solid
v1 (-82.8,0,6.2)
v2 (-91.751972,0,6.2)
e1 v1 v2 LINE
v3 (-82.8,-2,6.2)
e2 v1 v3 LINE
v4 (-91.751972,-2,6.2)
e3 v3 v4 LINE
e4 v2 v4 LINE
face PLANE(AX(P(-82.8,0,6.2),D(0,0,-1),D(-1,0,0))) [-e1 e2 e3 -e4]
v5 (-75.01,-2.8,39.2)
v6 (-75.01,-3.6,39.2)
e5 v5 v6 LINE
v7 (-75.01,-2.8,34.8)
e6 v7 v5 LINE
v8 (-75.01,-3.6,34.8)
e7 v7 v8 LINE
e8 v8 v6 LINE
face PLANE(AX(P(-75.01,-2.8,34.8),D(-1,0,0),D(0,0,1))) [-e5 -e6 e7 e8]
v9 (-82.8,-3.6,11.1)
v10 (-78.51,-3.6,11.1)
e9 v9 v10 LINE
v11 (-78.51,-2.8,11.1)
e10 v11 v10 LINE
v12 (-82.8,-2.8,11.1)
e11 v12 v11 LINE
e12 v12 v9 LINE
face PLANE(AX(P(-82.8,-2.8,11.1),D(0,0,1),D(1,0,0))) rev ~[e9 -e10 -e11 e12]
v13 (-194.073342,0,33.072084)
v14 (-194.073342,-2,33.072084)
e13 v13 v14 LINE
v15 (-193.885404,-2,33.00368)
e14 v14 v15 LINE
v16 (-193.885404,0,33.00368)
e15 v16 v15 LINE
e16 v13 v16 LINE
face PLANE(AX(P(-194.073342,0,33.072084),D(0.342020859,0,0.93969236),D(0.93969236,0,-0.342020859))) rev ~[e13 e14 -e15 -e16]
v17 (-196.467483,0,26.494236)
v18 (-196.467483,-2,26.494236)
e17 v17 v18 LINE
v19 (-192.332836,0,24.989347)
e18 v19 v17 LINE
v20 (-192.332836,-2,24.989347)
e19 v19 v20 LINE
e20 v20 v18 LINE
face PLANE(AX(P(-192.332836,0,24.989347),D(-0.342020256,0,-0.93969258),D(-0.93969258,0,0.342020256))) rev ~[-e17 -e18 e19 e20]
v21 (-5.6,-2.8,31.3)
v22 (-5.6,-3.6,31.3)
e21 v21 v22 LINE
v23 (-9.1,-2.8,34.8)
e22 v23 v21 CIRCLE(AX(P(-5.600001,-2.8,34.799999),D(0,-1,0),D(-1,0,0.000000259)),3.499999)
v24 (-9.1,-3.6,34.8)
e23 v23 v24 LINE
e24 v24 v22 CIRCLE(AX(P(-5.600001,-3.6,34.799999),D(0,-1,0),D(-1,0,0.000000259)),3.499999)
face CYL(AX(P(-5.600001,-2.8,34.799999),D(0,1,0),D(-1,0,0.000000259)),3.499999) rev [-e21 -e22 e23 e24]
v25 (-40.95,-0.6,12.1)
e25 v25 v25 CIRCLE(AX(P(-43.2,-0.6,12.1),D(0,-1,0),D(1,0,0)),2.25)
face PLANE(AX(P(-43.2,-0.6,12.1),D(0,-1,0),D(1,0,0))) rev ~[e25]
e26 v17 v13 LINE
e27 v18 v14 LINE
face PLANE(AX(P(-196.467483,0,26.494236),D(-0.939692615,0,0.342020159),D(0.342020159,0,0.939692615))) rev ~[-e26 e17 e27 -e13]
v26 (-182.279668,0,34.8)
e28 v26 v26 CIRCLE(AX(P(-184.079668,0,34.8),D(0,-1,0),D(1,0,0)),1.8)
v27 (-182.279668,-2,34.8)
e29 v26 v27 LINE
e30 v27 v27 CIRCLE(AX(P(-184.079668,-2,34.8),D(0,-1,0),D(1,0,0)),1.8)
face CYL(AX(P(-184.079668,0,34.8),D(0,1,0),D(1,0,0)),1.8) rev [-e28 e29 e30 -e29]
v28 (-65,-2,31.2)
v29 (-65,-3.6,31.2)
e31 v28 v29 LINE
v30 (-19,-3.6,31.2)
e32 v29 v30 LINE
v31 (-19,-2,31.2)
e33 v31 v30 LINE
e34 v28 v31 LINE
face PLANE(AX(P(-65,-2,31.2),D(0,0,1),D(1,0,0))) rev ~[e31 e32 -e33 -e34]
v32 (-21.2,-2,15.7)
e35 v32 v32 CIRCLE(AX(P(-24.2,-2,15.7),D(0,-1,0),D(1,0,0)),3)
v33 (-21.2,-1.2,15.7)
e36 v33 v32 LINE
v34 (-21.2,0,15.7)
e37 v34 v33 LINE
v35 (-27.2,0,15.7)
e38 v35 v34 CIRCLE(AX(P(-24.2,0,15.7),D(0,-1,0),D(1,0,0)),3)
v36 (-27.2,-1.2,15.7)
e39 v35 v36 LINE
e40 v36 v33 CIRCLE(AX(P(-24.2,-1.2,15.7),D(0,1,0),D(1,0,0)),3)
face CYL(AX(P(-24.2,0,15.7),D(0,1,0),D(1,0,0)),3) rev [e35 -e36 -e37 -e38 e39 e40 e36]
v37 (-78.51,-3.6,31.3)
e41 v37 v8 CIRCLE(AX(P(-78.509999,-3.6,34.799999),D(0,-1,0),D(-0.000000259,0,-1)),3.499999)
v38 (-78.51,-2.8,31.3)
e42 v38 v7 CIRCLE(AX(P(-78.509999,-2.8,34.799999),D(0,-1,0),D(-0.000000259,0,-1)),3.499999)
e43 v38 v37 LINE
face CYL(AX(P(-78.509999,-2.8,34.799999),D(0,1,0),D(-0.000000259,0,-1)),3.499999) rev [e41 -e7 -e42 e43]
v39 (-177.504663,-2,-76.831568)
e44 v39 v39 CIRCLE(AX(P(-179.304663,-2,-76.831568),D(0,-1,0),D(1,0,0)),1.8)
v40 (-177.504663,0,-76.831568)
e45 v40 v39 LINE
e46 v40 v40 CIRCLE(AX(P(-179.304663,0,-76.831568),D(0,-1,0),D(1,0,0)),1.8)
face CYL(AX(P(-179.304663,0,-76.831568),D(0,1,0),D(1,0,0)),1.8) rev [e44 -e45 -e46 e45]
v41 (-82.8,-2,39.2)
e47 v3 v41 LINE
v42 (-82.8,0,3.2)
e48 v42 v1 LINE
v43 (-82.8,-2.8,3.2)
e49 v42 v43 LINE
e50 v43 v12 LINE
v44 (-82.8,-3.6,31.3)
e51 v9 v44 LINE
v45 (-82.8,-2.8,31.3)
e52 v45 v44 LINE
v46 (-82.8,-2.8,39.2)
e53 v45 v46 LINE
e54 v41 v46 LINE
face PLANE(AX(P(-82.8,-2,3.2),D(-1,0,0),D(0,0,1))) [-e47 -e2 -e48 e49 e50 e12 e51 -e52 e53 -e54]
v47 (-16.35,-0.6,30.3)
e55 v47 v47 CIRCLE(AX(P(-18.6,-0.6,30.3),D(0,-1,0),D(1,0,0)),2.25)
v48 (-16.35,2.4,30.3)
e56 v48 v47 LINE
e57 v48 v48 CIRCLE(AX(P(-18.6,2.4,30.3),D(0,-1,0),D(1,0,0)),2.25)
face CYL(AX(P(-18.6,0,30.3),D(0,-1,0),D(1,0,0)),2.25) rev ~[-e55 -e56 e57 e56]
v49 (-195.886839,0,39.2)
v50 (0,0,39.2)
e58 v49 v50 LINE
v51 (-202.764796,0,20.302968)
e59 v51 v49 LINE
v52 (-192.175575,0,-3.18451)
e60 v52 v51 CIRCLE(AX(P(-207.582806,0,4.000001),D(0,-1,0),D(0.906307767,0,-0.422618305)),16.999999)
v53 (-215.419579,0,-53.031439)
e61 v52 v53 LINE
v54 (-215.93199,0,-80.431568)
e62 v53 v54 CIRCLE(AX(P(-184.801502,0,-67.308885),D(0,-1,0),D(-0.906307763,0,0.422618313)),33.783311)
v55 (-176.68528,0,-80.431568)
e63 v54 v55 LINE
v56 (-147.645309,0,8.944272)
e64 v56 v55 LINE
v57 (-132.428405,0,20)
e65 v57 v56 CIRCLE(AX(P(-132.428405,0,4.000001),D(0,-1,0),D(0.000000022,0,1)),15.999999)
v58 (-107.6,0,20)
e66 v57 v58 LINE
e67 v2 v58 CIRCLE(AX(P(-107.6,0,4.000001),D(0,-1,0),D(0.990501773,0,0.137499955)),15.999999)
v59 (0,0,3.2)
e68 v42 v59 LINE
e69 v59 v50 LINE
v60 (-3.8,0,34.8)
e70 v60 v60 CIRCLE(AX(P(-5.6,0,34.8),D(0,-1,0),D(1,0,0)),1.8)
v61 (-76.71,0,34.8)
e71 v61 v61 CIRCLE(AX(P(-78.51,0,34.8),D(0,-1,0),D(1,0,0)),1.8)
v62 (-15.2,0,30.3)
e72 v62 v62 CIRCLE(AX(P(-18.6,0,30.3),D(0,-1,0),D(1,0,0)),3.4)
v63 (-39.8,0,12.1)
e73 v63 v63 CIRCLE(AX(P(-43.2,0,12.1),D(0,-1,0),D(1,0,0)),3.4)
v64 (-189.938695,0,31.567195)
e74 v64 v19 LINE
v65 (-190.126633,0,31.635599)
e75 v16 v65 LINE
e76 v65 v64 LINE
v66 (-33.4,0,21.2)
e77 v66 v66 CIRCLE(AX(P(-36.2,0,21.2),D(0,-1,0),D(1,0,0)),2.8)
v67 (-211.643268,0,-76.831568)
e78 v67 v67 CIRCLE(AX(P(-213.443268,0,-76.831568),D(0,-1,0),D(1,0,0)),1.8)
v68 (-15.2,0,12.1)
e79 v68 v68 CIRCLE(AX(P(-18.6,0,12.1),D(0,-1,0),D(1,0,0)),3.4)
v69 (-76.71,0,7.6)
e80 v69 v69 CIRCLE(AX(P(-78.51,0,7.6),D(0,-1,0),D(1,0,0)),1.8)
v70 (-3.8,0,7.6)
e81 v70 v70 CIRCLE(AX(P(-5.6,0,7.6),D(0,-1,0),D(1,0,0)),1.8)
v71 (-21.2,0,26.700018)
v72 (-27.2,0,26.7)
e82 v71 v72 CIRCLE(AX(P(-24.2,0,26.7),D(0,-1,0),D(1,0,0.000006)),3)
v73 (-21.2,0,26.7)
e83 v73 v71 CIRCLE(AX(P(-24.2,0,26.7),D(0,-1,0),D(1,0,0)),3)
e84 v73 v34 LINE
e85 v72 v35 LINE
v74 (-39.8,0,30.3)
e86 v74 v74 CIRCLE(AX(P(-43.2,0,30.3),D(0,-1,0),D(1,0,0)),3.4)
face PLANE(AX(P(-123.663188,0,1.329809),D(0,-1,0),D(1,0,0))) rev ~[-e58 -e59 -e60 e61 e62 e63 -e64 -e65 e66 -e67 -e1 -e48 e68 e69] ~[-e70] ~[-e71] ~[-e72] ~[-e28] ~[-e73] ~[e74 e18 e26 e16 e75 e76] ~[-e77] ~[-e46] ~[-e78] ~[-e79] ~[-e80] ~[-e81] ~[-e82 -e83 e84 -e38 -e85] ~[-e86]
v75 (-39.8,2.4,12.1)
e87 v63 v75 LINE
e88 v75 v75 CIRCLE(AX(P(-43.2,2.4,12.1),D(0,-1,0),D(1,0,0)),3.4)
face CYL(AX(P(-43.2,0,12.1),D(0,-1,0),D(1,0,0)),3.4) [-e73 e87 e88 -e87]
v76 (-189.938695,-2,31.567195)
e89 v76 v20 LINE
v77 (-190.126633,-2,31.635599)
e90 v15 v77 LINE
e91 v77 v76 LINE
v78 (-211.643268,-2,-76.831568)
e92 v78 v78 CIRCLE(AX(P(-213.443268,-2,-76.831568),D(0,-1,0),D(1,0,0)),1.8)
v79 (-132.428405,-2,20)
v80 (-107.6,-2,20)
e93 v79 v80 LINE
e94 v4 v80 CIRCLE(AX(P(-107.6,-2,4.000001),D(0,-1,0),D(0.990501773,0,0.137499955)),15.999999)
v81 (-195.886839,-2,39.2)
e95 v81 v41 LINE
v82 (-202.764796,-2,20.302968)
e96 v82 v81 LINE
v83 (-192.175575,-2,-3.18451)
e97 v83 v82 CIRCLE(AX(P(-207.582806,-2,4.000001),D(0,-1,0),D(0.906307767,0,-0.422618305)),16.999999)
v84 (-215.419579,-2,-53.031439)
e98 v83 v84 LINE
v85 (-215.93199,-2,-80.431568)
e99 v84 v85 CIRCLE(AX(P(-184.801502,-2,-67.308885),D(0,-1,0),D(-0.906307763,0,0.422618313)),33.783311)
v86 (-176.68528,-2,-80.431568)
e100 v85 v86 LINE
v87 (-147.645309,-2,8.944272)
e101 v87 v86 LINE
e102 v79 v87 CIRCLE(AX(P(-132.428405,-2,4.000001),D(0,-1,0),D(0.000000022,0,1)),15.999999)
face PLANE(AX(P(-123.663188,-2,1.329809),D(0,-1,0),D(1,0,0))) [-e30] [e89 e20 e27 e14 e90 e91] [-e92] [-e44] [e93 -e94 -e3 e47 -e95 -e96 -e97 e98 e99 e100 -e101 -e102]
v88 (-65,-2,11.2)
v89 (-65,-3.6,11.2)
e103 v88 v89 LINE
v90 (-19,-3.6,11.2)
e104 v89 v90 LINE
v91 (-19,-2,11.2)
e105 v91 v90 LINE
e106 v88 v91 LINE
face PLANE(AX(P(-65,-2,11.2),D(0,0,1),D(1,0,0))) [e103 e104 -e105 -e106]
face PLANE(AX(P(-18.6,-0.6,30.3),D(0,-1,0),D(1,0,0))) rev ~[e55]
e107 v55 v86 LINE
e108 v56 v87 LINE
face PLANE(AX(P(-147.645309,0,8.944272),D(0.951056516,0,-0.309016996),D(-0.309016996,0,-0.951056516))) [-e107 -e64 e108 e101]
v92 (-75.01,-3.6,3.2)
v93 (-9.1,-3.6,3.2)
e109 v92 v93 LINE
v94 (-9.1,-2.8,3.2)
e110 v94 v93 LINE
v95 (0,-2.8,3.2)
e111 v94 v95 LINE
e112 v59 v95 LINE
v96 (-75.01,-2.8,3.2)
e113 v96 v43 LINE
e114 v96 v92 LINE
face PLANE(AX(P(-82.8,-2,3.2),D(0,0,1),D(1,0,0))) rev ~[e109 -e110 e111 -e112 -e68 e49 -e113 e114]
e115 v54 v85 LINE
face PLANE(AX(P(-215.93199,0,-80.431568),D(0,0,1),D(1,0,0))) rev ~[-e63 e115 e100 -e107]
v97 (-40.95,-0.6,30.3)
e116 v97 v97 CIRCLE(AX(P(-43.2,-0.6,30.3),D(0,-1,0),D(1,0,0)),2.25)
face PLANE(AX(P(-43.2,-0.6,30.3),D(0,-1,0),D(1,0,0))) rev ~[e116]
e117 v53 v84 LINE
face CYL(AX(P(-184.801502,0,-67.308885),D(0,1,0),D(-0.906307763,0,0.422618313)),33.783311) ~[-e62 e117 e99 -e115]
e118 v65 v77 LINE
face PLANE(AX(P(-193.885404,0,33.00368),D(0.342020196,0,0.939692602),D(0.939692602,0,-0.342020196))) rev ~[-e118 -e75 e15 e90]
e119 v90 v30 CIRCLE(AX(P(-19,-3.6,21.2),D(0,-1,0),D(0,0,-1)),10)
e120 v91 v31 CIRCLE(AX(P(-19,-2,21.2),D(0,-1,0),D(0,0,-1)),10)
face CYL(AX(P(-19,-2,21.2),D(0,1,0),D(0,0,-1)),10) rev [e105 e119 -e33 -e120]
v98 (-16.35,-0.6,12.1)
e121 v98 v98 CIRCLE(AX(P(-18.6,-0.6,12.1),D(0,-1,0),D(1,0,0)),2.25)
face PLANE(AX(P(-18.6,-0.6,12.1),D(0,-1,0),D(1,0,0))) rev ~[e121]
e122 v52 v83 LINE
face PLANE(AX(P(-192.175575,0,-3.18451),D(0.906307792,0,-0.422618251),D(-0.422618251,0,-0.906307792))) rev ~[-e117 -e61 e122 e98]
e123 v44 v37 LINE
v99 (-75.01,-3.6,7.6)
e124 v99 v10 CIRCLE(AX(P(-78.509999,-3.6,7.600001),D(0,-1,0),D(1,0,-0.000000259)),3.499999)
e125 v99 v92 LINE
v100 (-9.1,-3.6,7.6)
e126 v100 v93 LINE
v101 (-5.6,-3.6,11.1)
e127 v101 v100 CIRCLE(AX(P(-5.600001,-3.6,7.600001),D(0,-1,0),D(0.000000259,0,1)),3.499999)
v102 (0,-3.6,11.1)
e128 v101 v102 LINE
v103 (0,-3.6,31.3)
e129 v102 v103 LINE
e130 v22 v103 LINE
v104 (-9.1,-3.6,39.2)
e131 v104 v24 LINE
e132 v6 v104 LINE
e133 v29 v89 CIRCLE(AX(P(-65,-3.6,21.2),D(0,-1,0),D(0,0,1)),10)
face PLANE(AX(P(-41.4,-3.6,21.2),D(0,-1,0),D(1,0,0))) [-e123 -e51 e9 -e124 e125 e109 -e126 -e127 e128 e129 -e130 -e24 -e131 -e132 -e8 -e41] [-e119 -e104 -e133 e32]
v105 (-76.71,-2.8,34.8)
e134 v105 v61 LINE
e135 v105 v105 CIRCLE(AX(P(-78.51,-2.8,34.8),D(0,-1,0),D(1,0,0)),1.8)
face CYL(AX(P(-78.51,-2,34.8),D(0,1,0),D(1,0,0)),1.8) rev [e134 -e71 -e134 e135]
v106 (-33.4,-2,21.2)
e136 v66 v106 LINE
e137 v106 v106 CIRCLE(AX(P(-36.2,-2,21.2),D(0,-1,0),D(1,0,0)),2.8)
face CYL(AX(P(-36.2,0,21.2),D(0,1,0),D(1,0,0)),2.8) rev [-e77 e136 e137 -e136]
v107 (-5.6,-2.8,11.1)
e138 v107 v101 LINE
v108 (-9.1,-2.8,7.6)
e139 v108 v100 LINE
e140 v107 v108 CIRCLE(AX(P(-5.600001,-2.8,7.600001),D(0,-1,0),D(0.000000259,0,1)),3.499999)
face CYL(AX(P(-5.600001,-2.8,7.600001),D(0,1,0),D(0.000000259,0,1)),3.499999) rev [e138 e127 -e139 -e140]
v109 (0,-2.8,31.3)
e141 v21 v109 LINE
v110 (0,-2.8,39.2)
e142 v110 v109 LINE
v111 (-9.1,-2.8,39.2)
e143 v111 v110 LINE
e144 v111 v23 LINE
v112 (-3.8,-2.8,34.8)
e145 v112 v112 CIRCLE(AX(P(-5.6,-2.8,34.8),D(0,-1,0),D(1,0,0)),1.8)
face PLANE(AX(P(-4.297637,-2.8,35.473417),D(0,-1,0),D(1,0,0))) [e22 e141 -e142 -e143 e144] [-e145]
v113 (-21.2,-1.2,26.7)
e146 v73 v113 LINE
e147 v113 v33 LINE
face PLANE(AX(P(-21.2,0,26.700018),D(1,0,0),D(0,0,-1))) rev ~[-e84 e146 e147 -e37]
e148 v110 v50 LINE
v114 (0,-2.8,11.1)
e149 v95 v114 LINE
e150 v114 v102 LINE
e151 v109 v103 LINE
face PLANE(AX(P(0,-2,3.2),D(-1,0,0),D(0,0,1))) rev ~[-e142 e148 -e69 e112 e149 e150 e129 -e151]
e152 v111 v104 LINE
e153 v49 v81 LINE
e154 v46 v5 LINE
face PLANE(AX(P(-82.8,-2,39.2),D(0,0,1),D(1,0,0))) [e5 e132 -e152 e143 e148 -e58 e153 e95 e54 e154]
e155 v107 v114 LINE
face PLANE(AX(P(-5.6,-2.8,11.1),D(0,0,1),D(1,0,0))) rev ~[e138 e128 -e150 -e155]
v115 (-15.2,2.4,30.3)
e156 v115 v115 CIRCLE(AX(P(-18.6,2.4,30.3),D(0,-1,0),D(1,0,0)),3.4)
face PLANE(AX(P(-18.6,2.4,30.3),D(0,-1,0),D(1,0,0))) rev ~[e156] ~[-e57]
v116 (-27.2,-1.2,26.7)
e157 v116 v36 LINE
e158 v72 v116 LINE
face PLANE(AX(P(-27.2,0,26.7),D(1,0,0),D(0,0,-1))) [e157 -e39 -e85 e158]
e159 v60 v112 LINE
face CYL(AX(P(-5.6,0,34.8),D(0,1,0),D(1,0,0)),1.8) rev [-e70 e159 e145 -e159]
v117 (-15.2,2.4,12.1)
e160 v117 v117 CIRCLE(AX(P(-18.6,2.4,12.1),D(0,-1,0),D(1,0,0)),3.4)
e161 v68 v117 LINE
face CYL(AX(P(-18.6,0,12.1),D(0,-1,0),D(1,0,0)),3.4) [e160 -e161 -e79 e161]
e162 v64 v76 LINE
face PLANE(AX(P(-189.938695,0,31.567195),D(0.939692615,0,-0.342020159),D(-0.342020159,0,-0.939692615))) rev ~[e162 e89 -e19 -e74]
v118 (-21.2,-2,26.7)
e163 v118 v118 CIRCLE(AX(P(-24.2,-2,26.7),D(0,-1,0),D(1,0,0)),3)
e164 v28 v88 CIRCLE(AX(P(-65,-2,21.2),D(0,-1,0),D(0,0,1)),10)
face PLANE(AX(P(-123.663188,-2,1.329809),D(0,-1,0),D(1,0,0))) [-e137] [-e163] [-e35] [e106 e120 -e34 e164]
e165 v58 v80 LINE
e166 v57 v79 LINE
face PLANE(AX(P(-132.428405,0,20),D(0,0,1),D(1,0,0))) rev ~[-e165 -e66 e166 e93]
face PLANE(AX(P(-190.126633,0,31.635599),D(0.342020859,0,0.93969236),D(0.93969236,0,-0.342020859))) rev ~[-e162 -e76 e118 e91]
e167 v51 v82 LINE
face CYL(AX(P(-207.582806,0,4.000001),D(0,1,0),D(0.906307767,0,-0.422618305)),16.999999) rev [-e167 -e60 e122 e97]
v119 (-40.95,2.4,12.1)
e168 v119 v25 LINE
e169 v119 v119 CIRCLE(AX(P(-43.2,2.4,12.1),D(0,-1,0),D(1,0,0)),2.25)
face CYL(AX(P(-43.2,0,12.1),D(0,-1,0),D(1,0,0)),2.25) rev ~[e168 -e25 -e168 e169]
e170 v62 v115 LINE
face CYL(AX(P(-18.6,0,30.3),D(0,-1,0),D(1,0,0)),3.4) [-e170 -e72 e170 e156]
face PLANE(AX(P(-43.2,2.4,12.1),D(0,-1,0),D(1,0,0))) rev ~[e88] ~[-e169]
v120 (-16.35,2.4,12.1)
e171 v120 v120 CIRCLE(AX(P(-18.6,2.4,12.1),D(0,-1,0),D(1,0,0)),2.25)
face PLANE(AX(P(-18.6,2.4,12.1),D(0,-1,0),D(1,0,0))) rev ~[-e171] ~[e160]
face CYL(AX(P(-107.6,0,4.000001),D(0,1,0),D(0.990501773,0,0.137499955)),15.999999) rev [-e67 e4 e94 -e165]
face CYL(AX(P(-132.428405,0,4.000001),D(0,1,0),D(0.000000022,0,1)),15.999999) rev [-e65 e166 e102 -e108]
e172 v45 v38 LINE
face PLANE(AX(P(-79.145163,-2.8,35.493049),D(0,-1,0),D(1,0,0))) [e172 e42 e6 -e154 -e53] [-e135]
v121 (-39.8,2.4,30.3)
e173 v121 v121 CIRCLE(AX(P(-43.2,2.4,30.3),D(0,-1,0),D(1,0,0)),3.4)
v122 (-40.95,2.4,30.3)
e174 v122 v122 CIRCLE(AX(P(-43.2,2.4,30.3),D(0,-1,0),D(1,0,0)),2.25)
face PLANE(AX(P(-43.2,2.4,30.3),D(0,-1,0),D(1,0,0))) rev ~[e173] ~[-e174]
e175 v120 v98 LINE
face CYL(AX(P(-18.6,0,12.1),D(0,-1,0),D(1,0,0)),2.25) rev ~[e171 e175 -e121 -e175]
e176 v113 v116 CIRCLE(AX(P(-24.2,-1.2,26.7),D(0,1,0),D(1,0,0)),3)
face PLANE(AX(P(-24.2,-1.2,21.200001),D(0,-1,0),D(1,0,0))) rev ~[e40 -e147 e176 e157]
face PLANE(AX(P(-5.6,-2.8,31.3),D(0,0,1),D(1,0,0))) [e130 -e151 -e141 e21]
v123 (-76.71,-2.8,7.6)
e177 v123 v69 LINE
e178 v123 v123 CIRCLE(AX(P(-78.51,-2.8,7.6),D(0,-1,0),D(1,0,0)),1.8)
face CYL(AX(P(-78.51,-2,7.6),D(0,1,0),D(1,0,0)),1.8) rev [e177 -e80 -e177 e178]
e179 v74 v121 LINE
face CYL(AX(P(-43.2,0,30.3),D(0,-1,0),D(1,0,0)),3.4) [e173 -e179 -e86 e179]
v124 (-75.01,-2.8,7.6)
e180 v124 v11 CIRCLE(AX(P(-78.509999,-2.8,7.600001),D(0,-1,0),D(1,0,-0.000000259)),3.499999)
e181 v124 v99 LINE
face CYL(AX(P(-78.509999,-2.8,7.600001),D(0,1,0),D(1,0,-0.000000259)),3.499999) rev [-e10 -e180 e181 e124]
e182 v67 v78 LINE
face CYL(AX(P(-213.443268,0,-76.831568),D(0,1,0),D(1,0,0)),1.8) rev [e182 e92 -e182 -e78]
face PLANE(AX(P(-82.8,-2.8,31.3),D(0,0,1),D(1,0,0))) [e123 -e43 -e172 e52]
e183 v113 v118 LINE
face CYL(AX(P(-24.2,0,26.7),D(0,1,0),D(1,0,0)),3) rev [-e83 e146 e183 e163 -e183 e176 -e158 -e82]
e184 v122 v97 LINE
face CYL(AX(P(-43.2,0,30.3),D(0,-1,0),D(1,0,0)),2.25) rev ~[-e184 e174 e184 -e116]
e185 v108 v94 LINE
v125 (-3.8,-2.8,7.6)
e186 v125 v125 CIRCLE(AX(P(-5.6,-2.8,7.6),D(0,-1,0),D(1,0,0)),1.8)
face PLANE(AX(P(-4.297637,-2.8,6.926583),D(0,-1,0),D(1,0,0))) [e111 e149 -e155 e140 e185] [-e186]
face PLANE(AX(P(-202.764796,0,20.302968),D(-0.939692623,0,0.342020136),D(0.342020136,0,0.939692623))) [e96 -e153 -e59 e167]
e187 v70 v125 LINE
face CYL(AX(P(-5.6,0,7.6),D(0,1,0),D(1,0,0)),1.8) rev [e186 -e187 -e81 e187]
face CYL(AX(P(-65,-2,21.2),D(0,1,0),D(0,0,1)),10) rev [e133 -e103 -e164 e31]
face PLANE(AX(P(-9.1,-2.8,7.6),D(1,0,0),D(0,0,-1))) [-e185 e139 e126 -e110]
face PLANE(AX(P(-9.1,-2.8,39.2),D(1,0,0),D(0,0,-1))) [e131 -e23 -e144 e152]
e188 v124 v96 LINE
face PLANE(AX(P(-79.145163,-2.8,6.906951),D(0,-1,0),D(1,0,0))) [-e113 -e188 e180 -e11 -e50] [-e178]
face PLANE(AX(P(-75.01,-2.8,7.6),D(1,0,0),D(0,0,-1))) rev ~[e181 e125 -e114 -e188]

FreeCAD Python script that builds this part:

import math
import FreeCAD as App
import Part
import Sketcher
from FreeCAD import Vector
Q = App.Units.Quantity

doc = App.newDocument("Part")
body = doc.addObject("PartDesign::Body", "Body")
body.AllowCompound = True

sketch1 = doc.addObject("Sketcher::SketchObject", "Sketch")
body.addObject(sketch1)
sketch1.AttachmentSupport = (doc.XZ_Plane, [""])
sketch1.MapMode = "FlatFace"
sketch1.addGeometry(Part.ArcOfCircle(Part.Circle(Vector(-78.5, 34.8, 0), Vector(0, 0, 1), 3.5), math.radians(-90), math.radians(0)), False)
sketch1.addGeometry(Part.LineSegment(Vector(-75, 34.8, 0), Vector(-75, 39.2, 0)), False)
sketch1.addGeometry(Part.LineSegment(Vector(-75, 39.2, 0), Vector(-82.8, 39.2, 0)), False)
sketch1.addGeometry(Part.LineSegment(Vector(-82.8, 39.2, 0), Vector(-82.8, 31.3, 0)), False)
sketch1.addGeometry(Part.LineSegment(Vector(-82.8, 31.3, 0), Vector(-78.5, 31.3, 0)), False)
sketch1.addGeometry(Part.Circle(Vector(-78.5, 34.8, 0), Vector(0, 0, 1), 1.8), False)
sketch1.addGeometry(Part.ArcOfCircle(Part.Circle(Vector(-5.6, 34.8, 0), Vector(0, 0, 1), 3.5), math.radians(180), math.radians(270)), False)
sketch1.addGeometry(Part.LineSegment(Vector(-5.6, 31.3, 0), Vector(0, 31.3, 0)), False)
sketch1.addGeometry(Part.LineSegment(Vector(0, 31.3, 0), Vector(0, 39.2, 0)), False)
sketch1.addGeometry(Part.LineSegment(Vector(0, 39.2, 0), Vector(-9.1, 39.2, 0)), False)
sketch1.addGeometry(Part.LineSegment(Vector(-9.1, 39.2, 0), Vector(-9.1, 34.8, 0)), False)
sketch1.addGeometry(Part.Circle(Vector(-5.6, 34.8, 0), Vector(0, 0, 1), 1.8), False)
sketch1.addGeometry(Part.ArcOfCircle(Part.Circle(Vector(-78.5, 7.6, 0), Vector(0, 0, 1), 3.5), math.radians(0), math.radians(90)), False)
sketch1.addGeometry(Part.LineSegment(Vector(-78.5, 11.1, 0), Vector(-82.8, 11.1, 0)), False)
sketch1.addGeometry(Part.LineSegment(Vector(-82.8, 11.1, 0), Vector(-82.8, 3.2, 0)), False)
sketch1.addGeometry(Part.LineSegment(Vector(-82.8, 3.2, 0), Vector(-75, 3.2, 0)), False)
sketch1.addGeometry(Part.LineSegment(Vector(-75, 3.2, 0), Vector(-75, 7.6, 0)), False)
sketch1.addGeometry(Part.Circle(Vector(-78.5, 7.6, 0), Vector(0, 0, 1), 1.8), False)
sketch1.addGeometry(Part.ArcOfCircle(Part.Circle(Vector(-5.6, 7.6, 0), Vector(0, 0, 1), 3.5), math.radians(90), math.radians(180)), False)
sketch1.addGeometry(Part.LineSegment(Vector(-9.1, 7.6, 0), Vector(-9.1, 3.2, 0)), False)
sketch1.addGeometry(Part.LineSegment(Vector(-9.1, 3.2, 0), Vector(0, 3.2, 0)), False)
sketch1.addGeometry(Part.LineSegment(Vector(0, 3.2, 0), Vector(0, 11.1, 0)), False)
sketch1.addGeometry(Part.LineSegment(Vector(0, 11.1, 0), Vector(-5.6, 11.1, 0)), False)
sketch1.addGeometry(Part.Circle(Vector(-5.6, 7.6, 0), Vector(0, 0, 1), 1.8), False)
sketch1.addConstraint(Sketcher.Constraint("Tangent", 0, 2, 1, 1))
sketch1.addConstraint(Sketcher.Constraint("Coincident", 1, 2, 2, 1))
sketch1.addConstraint(Sketcher.Constraint("Coincident", 2, 2, 3, 1))
sketch1.addConstraint(Sketcher.Constraint("Coincident", 3, 2, 4, 1))
sketch1.addConstraint(Sketcher.Constraint("Tangent", 4, 2, 0, 1))
sketch1.addConstraint(Sketcher.Constraint("Tangent", 6, 2, 7, 1))
sketch1.addConstraint(Sketcher.Constraint("Coincident", 7, 2, 8, 1))
sketch1.addConstraint(Sketcher.Constraint("Coincident", 8, 2, 9, 1))
sketch1.addConstraint(Sketcher.Constraint("Coincident", 9, 2, 10, 1))
sketch1.addConstraint(Sketcher.Constraint("Tangent", 10, 2, 6, 1))
sketch1.addConstraint(Sketcher.Constraint("Tangent", 12, 2, 13, 1))
sketch1.addConstraint(Sketcher.Constraint("Coincident", 13, 2, 14, 1))
sketch1.addConstraint(Sketcher.Constraint("Coincident", 14, 2, 15, 1))
sketch1.addConstraint(Sketcher.Constraint("Coincident", 15, 2, 16, 1))
sketch1.addConstraint(Sketcher.Constraint("Tangent", 16, 2, 12, 1))
sketch1.addConstraint(Sketcher.Constraint("Tangent", 18, 2, 19, 1))
sketch1.addConstraint(Sketcher.Constraint("Coincident", 19, 2, 20, 1))
sketch1.addConstraint(Sketcher.Constraint("Coincident", 20, 2, 21, 1))
sketch1.addConstraint(Sketcher.Constraint("Coincident", 21, 2, 22, 1))
sketch1.addConstraint(Sketcher.Constraint("Tangent", 22, 2, 18, 1))
sketch1.addConstraint(Sketcher.Constraint("Vertical", 1))
sketch1.addConstraint(Sketcher.Constraint("Horizontal", 2))
sketch1.addConstraint(Sketcher.Constraint("Vertical", 3))
sketch1.addConstraint(Sketcher.Constraint("Horizontal", 4))
sketch1.addConstraint(Sketcher.Constraint("Horizontal", 7))
sketch1.addConstraint(Sketcher.Constraint("Vertical", 8))
sketch1.addConstraint(Sketcher.Constraint("Horizontal", 9))
sketch1.addConstraint(Sketcher.Constraint("Vertical", 10))
sketch1.addConstraint(Sketcher.Constraint("Horizontal", 13))
sketch1.addConstraint(Sketcher.Constraint("Vertical", 14))
sketch1.addConstraint(Sketcher.Constraint("Horizontal", 15))
sketch1.addConstraint(Sketcher.Constraint("Vertical", 16))
sketch1.addConstraint(Sketcher.Constraint("Vertical", 19))
sketch1.addConstraint(Sketcher.Constraint("Horizontal", 20))
sketch1.addConstraint(Sketcher.Constraint("Vertical", 21))
sketch1.addConstraint(Sketcher.Constraint("Horizontal", 22))
sketch1.addConstraint(Sketcher.Constraint("Coincident", 5, 3, 0, 3))
sketch1.addConstraint(Sketcher.Constraint("Coincident", 11, 3, 6, 3))
sketch1.addConstraint(Sketcher.Constraint("Coincident", 17, 3, 12, 3))
sketch1.addConstraint(Sketcher.Constraint("Coincident", 23, 3, 18, 3))
sketch1.addConstraint(Sketcher.Constraint("Equal", 0, 6))
sketch1.addConstraint(Sketcher.Constraint("Equal", 5, 11))
sketch1.addConstraint(Sketcher.Constraint("Equal", 6, 12))
sketch1.addConstraint(Sketcher.Constraint("Equal", 11, 17))
sketch1.addConstraint(Sketcher.Constraint("Equal", 12, 18))
sketch1.addConstraint(Sketcher.Constraint("Equal", 17, 23))
sketch1.addConstraint(Sketcher.Constraint("PointOnObject", 7, 2, -2))
sketch1.addConstraint(Sketcher.Constraint("PointOnObject", 20, 2, -2))
sketch1.addConstraint(Sketcher.Constraint("Horizontal", 5, 3, 6, 3))
sketch1.addConstraint(Sketcher.Constraint("Horizontal", 17, 3, 18, 3))
sketch1.addConstraint(Sketcher.Constraint("Horizontal", 2, 2, 8, 2))
sketch1.addConstraint(Sketcher.Constraint("Horizontal", 15, 2, 19, 2))
sketch1.addConstraint(Sketcher.Constraint("Vertical", 5, 3, 12, 3))
sketch1.addConstraint(Sketcher.Constraint("Vertical", 11, 3, 18, 3))
sketch1.addConstraint(Sketcher.Constraint("Vertical", 3, 2, 13, 2))
sketch1.addConstraint(Sketcher.Constraint("Equal", 8, 14))
sketch1.addConstraint(Sketcher.Constraint("Diameter", 5, 3.6))
sketch1.addConstraint(Sketcher.Constraint("Radius", 0, 3.499999))
sketch1.addConstraint(Sketcher.Constraint("DistanceX", 7, 1, 7, 2, 5.6))
sketch1.addConstraint(Sketcher.Constraint("DistanceY", 1, 1, 1, 2, 4.4))
sketch1.addConstraint(Sketcher.Constraint("DistanceX", 2, 2, 2, 1, 7.79))
sketch1.addConstraint(Sketcher.Constraint("DistanceY", -1, 1, 0, 3, 34.799999))
sketch1.addConstraint(Sketcher.Constraint("DistanceY", -1, 1, 12, 3, 7.600001))
sketch1.addConstraint(Sketcher.Constraint("DistanceX", 2, 2, -1, 1, 82.8))
pad1 = doc.addObject("PartDesign::Pad", "Pad")
body.addObject(pad1)
pad1.Profile = sketch1
pad1.Length = 0.8
body2 = doc.addObject("PartDesign::Body", "Body001")
body2.AllowCompound = True
doc.recompute()

body.Placement = App.Placement(Vector(0, -2.8, 0), App.Rotation(Vector(0, 0, 1), 0))
boolean = doc.addObject("PartDesign::Boolean", "Boolean")
body2.addObject(boolean)
boolean.Type = "Fuse"
boolean.addObjects([body])
body3 = doc.addObject("PartDesign::Body", "Body002")

sketch2 = doc.addObject("Sketcher::SketchObject", "Sketch001")
body3.addObject(sketch2)
sketch2.AttachmentSupport = (doc.getObject("XZ_Plane002"), [""])
sketch2.MapMode = "FlatFace"
sketch2.addGeometry(Part.LineSegment(Vector(-82.8, 39.2, 0), Vector(-82.8, 3.2, 0)), False)
sketch2.addGeometry(Part.LineSegment(Vector(-82.8, 3.2, 0), Vector(0, 3.2, 0)), False)
sketch2.addGeometry(Part.LineSegment(Vector(0, 3.2, 0), Vector(0, 39.2, 0)), False)
sketch2.addGeometry(Part.LineSegment(Vector(0, 39.2, 0), Vector(-82.8, 39.2, 0)), False)
sketch2.addGeometry(Part.Circle(Vector(-78.5, 7.6, 0), Vector(0, 0, 1), 1.8), False)
sketch2.addGeometry(Part.Circle(Vector(-5.6, 7.6, 0), Vector(0, 0, 1), 1.8), False)
sketch2.addGeometry(Part.Circle(Vector(-78.5, 34.8, 0), Vector(0, 0, 1), 1.8), False)
sketch2.addGeometry(Part.ArcOfCircle(Part.Circle(Vector(-65, 21.2, 0), Vector(0, 0, 1), 10), math.radians(90), math.radians(270)), False)
sketch2.addGeometry(Part.LineSegment(Vector(-65, 31.2, 0), Vector(-19, 31.2, 0)), False)
sketch2.addGeometry(Part.ArcOfCircle(Part.Circle(Vector(-19, 21.2, 0), Vector(0, 0, 1), 10), math.radians(-90), math.radians(90)), False)
sketch2.addGeometry(Part.LineSegment(Vector(-19, 11.2, 0), Vector(-65, 11.2, 0)), False)
sketch2.addGeometry(Part.Circle(Vector(-5.6, 34.8, 0), Vector(0, 0, 1), 1.8), False)
sketch2.addConstraint(Sketcher.Constraint("Coincident", 0, 2, 1, 1))
sketch2.addConstraint(Sketcher.Constraint("Coincident", 1, 2, 2, 1))
sketch2.addConstraint(Sketcher.Constraint("Coincident", 2, 2, 3, 1))
sketch2.addConstraint(Sketcher.Constraint("Coincident", 3, 2, 0, 1))
sketch2.addConstraint(Sketcher.Constraint("Tangent", 7, 1, 8, 1))
sketch2.addConstraint(Sketcher.Constraint("Tangent", 8, 2, 9, 2))
sketch2.addConstraint(Sketcher.Constraint("Tangent", 9, 1, 10, 1))
sketch2.addConstraint(Sketcher.Constraint("Tangent", 10, 2, 7, 2))
sketch2.addConstraint(Sketcher.Constraint("Vertical", 0))
sketch2.addConstraint(Sketcher.Constraint("Horizontal", 1))
sketch2.addConstraint(Sketcher.Constraint("Vertical", 2))
sketch2.addConstraint(Sketcher.Constraint("Horizontal", 3))
sketch2.addConstraint(Sketcher.Constraint("Horizontal", 8))
sketch2.addConstraint(Sketcher.Constraint("Horizontal", 10))
sketch2.addConstraint(Sketcher.Constraint("Equal", 4, 5))
sketch2.addConstraint(Sketcher.Constraint("Equal", 5, 6))
sketch2.addConstraint(Sketcher.Constraint("Equal", 6, 11))
sketch2.addConstraint(Sketcher.Constraint("PointOnObject", 1, 2, -2))
sketch2.addConstraint(Sketcher.Constraint("Horizontal", 4, 3, 5, 3))
sketch2.addConstraint(Sketcher.Constraint("Horizontal", 6, 3, 11, 3))
sketch2.addConstraint(Sketcher.Constraint("Vertical", 4, 3, 6, 3))
sketch2.addConstraint(Sketcher.Constraint("Vertical", 5, 3, 11, 3))
sketch2.addConstraint(Sketcher.Constraint("Radius", 7, 10.0))
sketch2.addConstraint(Sketcher.Constraint("Diameter", 4, 3.6))
sketch2.addConstraint(Sketcher.Constraint("DistanceX", 8, 1, 8, 2, 46.0))
sketch2.addConstraint(Sketcher.Constraint("DistanceY", 0, 2, 0, 1, 36.0))
sketch2.addConstraint(Sketcher.Constraint("DistanceX", 1, 1, 1, 2, 82.8))
sketch2.addConstraint(Sketcher.Constraint("DistanceX", 7, 3, -1, 1, 65.0))
sketch2.addConstraint(Sketcher.Constraint("DistanceY", 0, 2, 7, 3, 18.0))
sketch2.addConstraint(Sketcher.Constraint("DistanceY", -1, 1, 4, 3, 7.6))
sketch2.addConstraint(Sketcher.Constraint("DistanceX", 5, 3, -1, 1, 5.6))
sketch2.addConstraint(Sketcher.Constraint("DistanceY", -1, 1, 6, 3, 34.8))
sketch2.addConstraint(Sketcher.Constraint("DistanceY", -1, 1, 7, 3, 21.2))
sketch2.addConstraint(Sketcher.Constraint("DistanceX", 4, 3, -1, 1, 78.51))
pad2 = doc.addObject("PartDesign::Pad", "Pad001")
body3.addObject(pad2)
pad2.Profile = sketch2
pad2.Length = 1.6
body4 = doc.addObject("PartDesign::Body", "Body003")
doc.recompute()

body3.Placement = App.Placement(Vector(0, -2, 0), App.Rotation(Vector(0, 0, 1), 0))
boolean2 = doc.addObject("PartDesign::Boolean", "Boolean001")
body4.addObject(boolean2)
boolean2.Type = "Fuse"
boolean2.addObjects([body3])
doc.recompute()

boolean3 = doc.addObject("PartDesign::Boolean", "Boolean002")
body4.addObject(boolean3)
boolean3.Type = "Cut"
boolean3.addObjects([body2])
body5 = doc.addObject("PartDesign::Body", "Body004")
body5.AllowCompound = True

sketch3 = doc.addObject("Sketcher::SketchObject", "Sketch002")
body5.addObject(sketch3)
sketch3.AttachmentSupport = (doc.getObject("XZ_Plane004"), [""])
sketch3.MapMode = "FlatFace"
sketch3.addGeometry(Part.Circle(Vector(-18.6, 12.1, 0), Vector(0, 0, 1), 2.2), False)
sketch3.addGeometry(Part.Circle(Vector(-18.6, 30.3, 0), Vector(0, 0, 1), 2.2), False)
sketch3.addGeometry(Part.Circle(Vector(-43.2, 30.3, 0), Vector(0, 0, 1), 2.2), False)
sketch3.addGeometry(Part.Circle(Vector(-43.2, 12.1, 0), Vector(0, 0, 1), 2.2), False)
sketch3.addConstraint(Sketcher.Constraint("Equal", 0, 1))
sketch3.addConstraint(Sketcher.Constraint("Equal", 1, 2))
sketch3.addConstraint(Sketcher.Constraint("Equal", 2, 3))
sketch3.addConstraint(Sketcher.Constraint("Horizontal", 1, 3, 2, 3))
sketch3.addConstraint(Sketcher.Constraint("Horizontal", 0, 3, 3, 3))
sketch3.addConstraint(Sketcher.Constraint("Vertical", 0, 3, 1, 3))
sketch3.addConstraint(Sketcher.Constraint("Vertical", 2, 3, 3, 3))
sketch3.addConstraint(Sketcher.Constraint("Diameter", 0, 4.5))
sketch3.addConstraint(Sketcher.Constraint("DistanceX", 0, 3, -1, 1, 18.6))
sketch3.addConstraint(Sketcher.Constraint("DistanceY", -1, 1, 0, 3, 12.1))
sketch3.addConstraint(Sketcher.Constraint("DistanceY", -1, 1, 1, 3, 30.3))
sketch3.addConstraint(Sketcher.Constraint("DistanceX", 2, 3, -1, 1, 43.2))
pad3 = doc.addObject("PartDesign::Pad", "Pad002")
body5.addObject(pad3)
pad3.Profile = sketch3
pad3.Type = "TwoLengths"
pad3.Length = 0.6
pad3.Length2 = 2.4
body6 = doc.addObject("PartDesign::Body", "Body005")
body6.AllowCompound = True

sketch4 = doc.addObject("Sketcher::SketchObject", "Sketch003")
body6.addObject(sketch4)
sketch4.AttachmentSupport = (doc.getObject("XZ_Plane005"), [""])
sketch4.MapMode = "FlatFace"
sketch4.addGeometry(Part.Circle(Vector(-43.2, 30.3, 0), Vector(0, 0, 1), 3.4), False)
sketch4.addGeometry(Part.Circle(Vector(-18.6, 30.3, 0), Vector(0, 0, 1), 3.4), False)
sketch4.addGeometry(Part.Circle(Vector(-43.2, 12.1, 0), Vector(0, 0, 1), 3.4), False)
sketch4.addGeometry(Part.Circle(Vector(-18.6, 12.1, 0), Vector(0, 0, 1), 3.4), False)
sketch4.addConstraint(Sketcher.Constraint("Equal", 0, 1))
sketch4.addConstraint(Sketcher.Constraint("Equal", 1, 2))
sketch4.addConstraint(Sketcher.Constraint("Equal", 2, 3))
sketch4.addConstraint(Sketcher.Constraint("Horizontal", 0, 3, 1, 3))
sketch4.addConstraint(Sketcher.Constraint("Horizontal", 2, 3, 3, 3))
sketch4.addConstraint(Sketcher.Constraint("Vertical", 0, 3, 2, 3))
sketch4.addConstraint(Sketcher.Constraint("Vertical", 1, 3, 3, 3))
sketch4.addConstraint(Sketcher.Constraint("Diameter", 0, 6.8))
sketch4.addConstraint(Sketcher.Constraint("DistanceX", 0, 3, -1, 1, 43.2))
sketch4.addConstraint(Sketcher.Constraint("DistanceY", -1, 1, 0, 3, 30.3))
sketch4.addConstraint(Sketcher.Constraint("DistanceX", 1, 3, -1, 1, 18.6))
sketch4.addConstraint(Sketcher.Constraint("DistanceY", -1, 1, 2, 3, 12.1))
pad4 = doc.addObject("PartDesign::Pad", "Pad003")
body6.addObject(pad4)
pad4.Profile = sketch4
pad4.Length = 2.4
pad4.Reversed = True
body7 = doc.addObject("PartDesign::Body", "Body006")

sketch5 = doc.addObject("Sketcher::SketchObject", "Sketch004")
body7.addObject(sketch5)
sketch5.AttachmentSupport = (doc.getObject("XZ_Plane006"), [""])
sketch5.MapMode = "FlatFace"
sketch5.addGeometry(Part.LineSegment(Vector(-27.2, 26.7, 0), Vector(-27.2, 15.7, 0)), False)
sketch5.addGeometry(Part.ArcOfCircle(Part.Circle(Vector(-24.2, 15.7, 0), Vector(0, 0, 1), 3), math.radians(180), math.radians(360)), False)
sketch5.addGeometry(Part.LineSegment(Vector(-21.2, 15.7, 0), Vector(-21.2, 26.7, 0)), False)
sketch5.addGeometry(Part.ArcOfCircle(Part.Circle(Vector(-24.2, 26.7, 0), Vector(0, 0, 1), 3), math.radians(0), math.radians(180)), False)
sketch5.addConstraint(Sketcher.Constraint("Tangent", 0, 2, 1, 1))
sketch5.addConstraint(Sketcher.Constraint("Tangent", 1, 2, 2, 1))
sketch5.addConstraint(Sketcher.Constraint("Coincident", 2, 2, 3, 1))
sketch5.addConstraint(Sketcher.Constraint("Tangent", 3, 2, 0, 1))
sketch5.addConstraint(Sketcher.Constraint("Vertical", 0))
sketch5.addConstraint(Sketcher.Constraint("Vertical", 2))
sketch5.addConstraint(Sketcher.Constraint("Radius", 1, 3.0))
sketch5.addConstraint(Sketcher.Constraint("DistanceY", 0, 2, 0, 1, 11.0))
sketch5.addConstraint(Sketcher.Constraint("DistanceX", 1, 3, -1, 1, 24.2))
sketch5.addConstraint(Sketcher.Constraint("DistanceY", -1, 1, 1, 3, 15.7))
sketch5.addConstraint(Sketcher.Constraint("DistanceY", 2, 1, 2, 2, 11.000018))
pad5 = doc.addObject("PartDesign::Pad", "Pad004")
body7.addObject(pad5)
pad5.Profile = sketch5
pad5.Length = 1.2
body8 = doc.addObject("PartDesign::Body", "Body007")

sketch6 = doc.addObject("Sketcher::SketchObject", "Sketch005")
body8.addObject(sketch6)
sketch6.AttachmentSupport = (doc.getObject("XZ_Plane007"), [""])
sketch6.MapMode = "FlatFace"
sketch6.addGeometry(Part.LineSegment(Vector(-82.8, 3.2, 0), Vector(0, 3.2, 0)), False)
sketch6.addGeometry(Part.LineSegment(Vector(0, 3.2, 0), Vector(0, 39.2, 0)), False)
sketch6.addGeometry(Part.LineSegment(Vector(0, 39.2, 0), Vector(-195.89, 39.2, 0)), False)
sketch6.addGeometry(Part.LineSegment(Vector(-195.89, 39.2, 0), Vector(-202.76, 20.3, 0)), False)
sketch6.addGeometry(Part.ArcOfCircle(Part.Circle(Vector(-207.58, 4, 0), Vector(0, 0, 1), 17), math.radians(-25), math.radians(74)), False)
sketch6.addGeometry(Part.LineSegment(Vector(-192.18, -3.18, 0), Vector(-215.42, -53.03, 0)), False)
sketch6.addGeometry(Part.ArcOfCircle(Part.Circle(Vector(-184.8, -67.31, 0), Vector(0, 0, 1), 33.78), math.radians(155), math.radians(203)), False)
sketch6.addGeometry(Part.LineSegment(Vector(-215.93, -80.43, 0), Vector(-176.69, -80.43, 0)), False)
sketch6.addGeometry(Part.LineSegment(Vector(-176.69, -80.43, 0), Vector(-147.65, 8.94, 0)), False)
sketch6.addGeometry(Part.ArcOfCircle(Part.Circle(Vector(-132.43, 4, 0), Vector(0, 0, 1), 16), math.radians(90), math.radians(162)), False)
sketch6.addGeometry(Part.LineSegment(Vector(-132.43, 20, 0), Vector(-107.6, 20, 0)), False)
sketch6.addGeometry(Part.ArcOfCircle(Part.Circle(Vector(-107.6, 4, 0), Vector(0, 0, 1), 16), math.radians(8), math.radians(90)), False)
sketch6.addGeometry(Part.LineSegment(Vector(-91.75, 6.2, 0), Vector(-82.8, 6.2, 0)), False)
sketch6.addGeometry(Part.LineSegment(Vector(-82.8, 6.2, 0), Vector(-82.8, 3.2, 0)), False)
sketch6.addGeometry(Part.Circle(Vector(-213.44, -76.83, 0), Vector(0, 0, 1), 1.8), False)
sketch6.addGeometry(Part.Circle(Vector(-179.3, -76.83, 0), Vector(0, 0, 1), 1.8), False)
sketch6.addGeometry(Part.LineSegment(Vector(-190.13, 31.64, 0), Vector(-189.94, 31.57, 0)), False)
sketch6.addGeometry(Part.LineSegment(Vector(-189.94, 31.57, 0), Vector(-192.33, 24.99, 0)), False)
sketch6.addGeometry(Part.LineSegment(Vector(-192.33, 24.99, 0), Vector(-196.47, 26.49, 0)), False)
sketch6.addGeometry(Part.LineSegment(Vector(-196.47, 26.49, 0), Vector(-194.07, 33.07, 0)), False)
sketch6.addGeometry(Part.LineSegment(Vector(-194.07, 33.07, 0), Vector(-193.89, 33, 0)), False)
sketch6.addGeometry(Part.LineSegment(Vector(-193.89, 33, 0), Vector(-190.13, 31.64, 0)), False)
sketch6.addGeometry(Part.Circle(Vector(-184.08, 34.8, 0), Vector(0, 0, 1), 1.8), False)
sketch6.addGeometry(Part.Circle(Vector(-78.51, 7.6, 0), Vector(0, 0, 1), 1.8), False)
sketch6.addGeometry(Part.Circle(Vector(-5.6, 7.6, 0), Vector(0, 0, 1), 1.8), False)
sketch6.addGeometry(Part.Circle(Vector(-78.51, 34.8, 0), Vector(0, 0, 1), 1.8), False)
sketch6.addGeometry(Part.Circle(Vector(-36.2, 21.2, 0), Vector(0, 0, 1), 2.8), False)
sketch6.addGeometry(Part.Circle(Vector(-24.2, 15.7, 0), Vector(0, 0, 1), 3), False)
sketch6.addGeometry(Part.Circle(Vector(-24.2, 26.7, 0), Vector(0, 0, 1), 3), False)
sketch6.addGeometry(Part.Circle(Vector(-5.6, 34.8, 0), Vector(0, 0, 1), 1.8), False)
sketch6.addConstraint(Sketcher.Constraint("Coincident", 0, 2, 1, 1))
sketch6.addConstraint(Sketcher.Constraint("Coincident", 1, 2, 2, 1))
sketch6.addConstraint(Sketcher.Constraint("Coincident", 2, 2, 3, 1))
sketch6.addConstraint(Sketcher.Constraint("Coincident", 3, 2, 4, 2))
sketch6.addConstraint(Sketcher.Constraint("Tangent", 4, 1, 5, 1))
sketch6.addConstraint(Sketcher.Constraint("Tangent", 5, 2, 6, 1))
sketch6.addConstraint(Sketcher.Constraint("Coincident", 6, 2, 7, 1))
sketch6.addConstraint(Sketcher.Constraint("Coincident", 7, 2, 8, 1))
sketch6.addConstraint(Sketcher.Constraint("Tangent", 8, 2, 9, 2))
sketch6.addConstraint(Sketcher.Constraint("Tangent", 9, 1, 10, 1))
sketch6.addConstraint(Sketcher.Constraint("Tangent", 10, 2, 11, 2))
sketch6.addConstraint(Sketcher.Constraint("Coincident", 11, 1, 12, 1))
sketch6.addConstraint(Sketcher.Constraint("Coincident", 12, 2, 13, 1))
sketch6.addConstraint(Sketcher.Constraint("Coincident", 13, 2, 0, 1))
sketch6.addConstraint(Sketcher.Constraint("Coincident", 16, 2, 17, 1))
sketch6.addConstraint(Sketcher.Constraint("Coincident", 17, 2, 18, 1))
sketch6.addConstraint(Sketcher.Constraint("Coincident", 18, 2, 19, 1))
sketch6.addConstraint(Sketcher.Constraint("Coincident", 19, 2, 20, 1))
sketch6.addConstraint(Sketcher.Constraint("Coincident", 20, 2, 21, 1))
sketch6.addConstraint(Sketcher.Constraint("Coincident", 21, 2, 16, 1))
sketch6.addConstraint(Sketcher.Constraint("Horizontal", 0))
sketch6.addConstraint(Sketcher.Constraint("Vertical", 1))
sketch6.addConstraint(Sketcher.Constraint("Horizontal", 2))
sketch6.addConstraint(Sketcher.Constraint("Horizontal", 7))
sketch6.addConstraint(Sketcher.Constraint("Horizontal", 10))
sketch6.addConstraint(Sketcher.Constraint("Horizontal", 12))
sketch6.addConstraint(Sketcher.Constraint("Vertical", 13))
sketch6.addConstraint(Sketcher.Constraint("Equal", 9, 11))
sketch6.addConstraint(Sketcher.Constraint("Equal", 14, 15))
sketch6.addConstraint(Sketcher.Constraint("Equal", 15, 22))
sketch6.addConstraint(Sketcher.Constraint("Equal", 22, 23))
sketch6.addConstraint(Sketcher.Constraint("Equal", 23, 24))
sketch6.addConstraint(Sketcher.Constraint("Equal", 24, 25))
sketch6.addConstraint(Sketcher.Constraint("Equal", 27, 28))
sketch6.addConstraint(Sketcher.Constraint("Equal", 25, 29))
sketch6.addConstraint(Sketcher.Constraint("PointOnObject", 0, 2, -2))
sketch6.addConstraint(Sketcher.Constraint("Perpendicular", 3, 16))
sketch6.addConstraint(Sketcher.Constraint("Perpendicular", 16, 17))
sketch6.addConstraint(Sketcher.Constraint("Perpendicular", 17, 18))
sketch6.addConstraint(Sketcher.Constraint("Perpendicular", 18, 19))
sketch6.addConstraint(Sketcher.Constraint("Perpendicular", 19, 20))
sketch6.addConstraint(Sketcher.Constraint("Parallel", 20, 21))
sketch6.addConstraint(Sketcher.Constraint("Horizontal", 4, 3, 9, 3))
sketch6.addConstraint(Sketcher.Constraint("Horizontal", 14, 3, 15, 3))
sketch6.addConstraint(Sketcher.Constraint("Horizontal", 23, 3, 24, 3))
sketch6.addConstraint(Sketcher.Constraint("Horizontal", 22, 3, 25, 3))
sketch6.addConstraint(Sketcher.Constraint("Horizontal", 25, 3, 29, 3))
sketch6.addConstraint(Sketcher.Constraint("Vertical", 23, 3, 25, 3))
sketch6.addConstraint(Sketcher.Constraint("Vertical", 27, 3, 28, 3))
sketch6.addConstraint(Sketcher.Constraint("Vertical", 24, 3, 29, 3))
sketch6.addConstraint(Sketcher.Constraint("Equal", 16, 20))
sketch6.addConstraint(Sketcher.Constraint("Diameter", 27, 6.0))
sketch6.addConstraint(Sketcher.Constraint("Radius", 4, 16.999999))
sketch6.addConstraint(Sketcher.Constraint("Radius", 9, 15.999999))
sketch6.addConstraint(Sketcher.Constraint("Diameter", 14, 3.6))
sketch6.addConstraint(Sketcher.Constraint("Diameter", 26, 5.6))
sketch6.addConstraint(Sketcher.Constraint("DistanceY", 1, 1, 1, 2, 36.0))
sketch6.addConstraint(Sketcher.Constraint("DistanceY", 13, 2, 13, 1, 3.0))
sketch6.addConstraint(Sketcher.Constraint("Angle", 3, Q("-110 deg")))
sketch6.addConstraint(Sketcher.Constraint("Angle", 5, Q("-114.999999 deg")))
sketch6.addConstraint(Sketcher.Constraint("Angle", 8, Q("72 deg")))
sketch6.addConstraint(Sketcher.Constraint("Distance", 5, 55.0))
sketch6.addConstraint(Sketcher.Constraint("Distance", 17, 7.0))
sketch6.addConstraint(Sketcher.Constraint("Distance", 21, 4.000001))
sketch6.addConstraint(Sketcher.Constraint("DistanceX", 0, 1, 0, 2, 82.8))
sketch6.addConstraint(Sketcher.Constraint("DistanceY", -1, 1, 4, 3, 4.000001))
sketch6.addConstraint(Sketcher.Constraint("DistanceX", 11, 3, 24, 3, 102.0))
sketch6.addConstraint(Sketcher.Constraint("DistanceX", 26, 3, 27, 3, 12.0))
sketch6.addConstraint(Sketcher.Constraint("DistanceY", 27, 3, 28, 3, 11.0))
sketch6.addConstraint(Sketcher.Constraint("DistanceY", 0, 2, 26, 3, 18.0))
sketch6.addConstraint(Sketcher.Constraint("Distance", 16, 0.199999))
sketch6.addConstraint(Sketcher.Constraint("DistanceX", 11, 3, -1, 1, 107.6))
sketch6.addConstraint(Sketcher.Constraint("DistanceY", -1, 1, 22, 3, 34.8))
sketch6.addConstraint(Sketcher.Constraint("DistanceY", -1, 1, 23, 3, 7.6))
sketch6.addConstraint(Sketcher.Constraint("DistanceX", 26, 3, -1, 1, 36.2))
sketch6.addConstraint(Sketcher.Constraint("DistanceY", -1, 1, 26, 3, 21.2))
sketch6.addConstraint(Sketcher.Constraint("DistanceY", -1, 1, 27, 3, 15.7))
sketch6.addConstraint(Sketcher.Constraint("DistanceY", 6, 2, 14, 3, 3.6))
sketch6.addConstraint(Sketcher.Constraint("DistanceX", 23, 3, -1, 1, 78.51))
sketch6.addConstraint(Sketcher.Constraint("Radius", 6, 33.783311))
sketch6.addConstraint(Sketcher.Constraint("Distance", 3, 20.109801))
sketch6.addConstraint(Sketcher.Constraint("DistanceX", 2, 2, 2, 1, 195.886839))
sketch6.addConstraint(Sketcher.Constraint("DistanceX", 7, 1, 7, 2, 39.24671))
sketch6.addConstraint(Sketcher.Constraint("DistanceY", -1, 1, 21, 2, 31.635599))
sketch6.addConstraint(Sketcher.Constraint("DistanceX", 4, 3, 9, 3, 75.154401))
sketch6.addConstraint(Sketcher.Constraint("DistanceX", 3, 2, 16, 2, 12.826101))
sketch6.addConstraint(Sketcher.Constraint("DistanceX", 22, 3, -1, 1, 184.079668))
sketch6.addConstraint(Sketcher.Constraint("DistanceX", 14, 3, 4, 3, 5.860462))
sketch6.addConstraint(Sketcher.Constraint("DistanceX", 6, 3, 15, 3, 5.496839))
pad6 = doc.addObject("PartDesign::Pad", "Pad005")
body8.addObject(pad6)
pad6.Profile = sketch6
pad6.Length = 2
doc.recompute()

boolean4 = doc.addObject("PartDesign::Boolean", "Boolean003")
body8.addObject(boolean4)
boolean4.Type = "Cut"
boolean4.addObjects([body7])
doc.recompute()

boolean5 = doc.addObject("PartDesign::Boolean", "Boolean004")
body8.addObject(boolean5)
boolean5.Type = "Fuse"
boolean5.addObjects([body6])
doc.recompute()

boolean6 = doc.addObject("PartDesign::Boolean", "Boolean005")
body8.addObject(boolean6)
boolean6.Type = "Cut"
boolean6.addObjects([body5])
doc.recompute()

boolean7 = doc.addObject("PartDesign::Boolean", "Boolean006")
body8.addObject(boolean7)
boolean7.Type = "Fuse"
boolean7.addObjects([body4])

doc.recompute()
